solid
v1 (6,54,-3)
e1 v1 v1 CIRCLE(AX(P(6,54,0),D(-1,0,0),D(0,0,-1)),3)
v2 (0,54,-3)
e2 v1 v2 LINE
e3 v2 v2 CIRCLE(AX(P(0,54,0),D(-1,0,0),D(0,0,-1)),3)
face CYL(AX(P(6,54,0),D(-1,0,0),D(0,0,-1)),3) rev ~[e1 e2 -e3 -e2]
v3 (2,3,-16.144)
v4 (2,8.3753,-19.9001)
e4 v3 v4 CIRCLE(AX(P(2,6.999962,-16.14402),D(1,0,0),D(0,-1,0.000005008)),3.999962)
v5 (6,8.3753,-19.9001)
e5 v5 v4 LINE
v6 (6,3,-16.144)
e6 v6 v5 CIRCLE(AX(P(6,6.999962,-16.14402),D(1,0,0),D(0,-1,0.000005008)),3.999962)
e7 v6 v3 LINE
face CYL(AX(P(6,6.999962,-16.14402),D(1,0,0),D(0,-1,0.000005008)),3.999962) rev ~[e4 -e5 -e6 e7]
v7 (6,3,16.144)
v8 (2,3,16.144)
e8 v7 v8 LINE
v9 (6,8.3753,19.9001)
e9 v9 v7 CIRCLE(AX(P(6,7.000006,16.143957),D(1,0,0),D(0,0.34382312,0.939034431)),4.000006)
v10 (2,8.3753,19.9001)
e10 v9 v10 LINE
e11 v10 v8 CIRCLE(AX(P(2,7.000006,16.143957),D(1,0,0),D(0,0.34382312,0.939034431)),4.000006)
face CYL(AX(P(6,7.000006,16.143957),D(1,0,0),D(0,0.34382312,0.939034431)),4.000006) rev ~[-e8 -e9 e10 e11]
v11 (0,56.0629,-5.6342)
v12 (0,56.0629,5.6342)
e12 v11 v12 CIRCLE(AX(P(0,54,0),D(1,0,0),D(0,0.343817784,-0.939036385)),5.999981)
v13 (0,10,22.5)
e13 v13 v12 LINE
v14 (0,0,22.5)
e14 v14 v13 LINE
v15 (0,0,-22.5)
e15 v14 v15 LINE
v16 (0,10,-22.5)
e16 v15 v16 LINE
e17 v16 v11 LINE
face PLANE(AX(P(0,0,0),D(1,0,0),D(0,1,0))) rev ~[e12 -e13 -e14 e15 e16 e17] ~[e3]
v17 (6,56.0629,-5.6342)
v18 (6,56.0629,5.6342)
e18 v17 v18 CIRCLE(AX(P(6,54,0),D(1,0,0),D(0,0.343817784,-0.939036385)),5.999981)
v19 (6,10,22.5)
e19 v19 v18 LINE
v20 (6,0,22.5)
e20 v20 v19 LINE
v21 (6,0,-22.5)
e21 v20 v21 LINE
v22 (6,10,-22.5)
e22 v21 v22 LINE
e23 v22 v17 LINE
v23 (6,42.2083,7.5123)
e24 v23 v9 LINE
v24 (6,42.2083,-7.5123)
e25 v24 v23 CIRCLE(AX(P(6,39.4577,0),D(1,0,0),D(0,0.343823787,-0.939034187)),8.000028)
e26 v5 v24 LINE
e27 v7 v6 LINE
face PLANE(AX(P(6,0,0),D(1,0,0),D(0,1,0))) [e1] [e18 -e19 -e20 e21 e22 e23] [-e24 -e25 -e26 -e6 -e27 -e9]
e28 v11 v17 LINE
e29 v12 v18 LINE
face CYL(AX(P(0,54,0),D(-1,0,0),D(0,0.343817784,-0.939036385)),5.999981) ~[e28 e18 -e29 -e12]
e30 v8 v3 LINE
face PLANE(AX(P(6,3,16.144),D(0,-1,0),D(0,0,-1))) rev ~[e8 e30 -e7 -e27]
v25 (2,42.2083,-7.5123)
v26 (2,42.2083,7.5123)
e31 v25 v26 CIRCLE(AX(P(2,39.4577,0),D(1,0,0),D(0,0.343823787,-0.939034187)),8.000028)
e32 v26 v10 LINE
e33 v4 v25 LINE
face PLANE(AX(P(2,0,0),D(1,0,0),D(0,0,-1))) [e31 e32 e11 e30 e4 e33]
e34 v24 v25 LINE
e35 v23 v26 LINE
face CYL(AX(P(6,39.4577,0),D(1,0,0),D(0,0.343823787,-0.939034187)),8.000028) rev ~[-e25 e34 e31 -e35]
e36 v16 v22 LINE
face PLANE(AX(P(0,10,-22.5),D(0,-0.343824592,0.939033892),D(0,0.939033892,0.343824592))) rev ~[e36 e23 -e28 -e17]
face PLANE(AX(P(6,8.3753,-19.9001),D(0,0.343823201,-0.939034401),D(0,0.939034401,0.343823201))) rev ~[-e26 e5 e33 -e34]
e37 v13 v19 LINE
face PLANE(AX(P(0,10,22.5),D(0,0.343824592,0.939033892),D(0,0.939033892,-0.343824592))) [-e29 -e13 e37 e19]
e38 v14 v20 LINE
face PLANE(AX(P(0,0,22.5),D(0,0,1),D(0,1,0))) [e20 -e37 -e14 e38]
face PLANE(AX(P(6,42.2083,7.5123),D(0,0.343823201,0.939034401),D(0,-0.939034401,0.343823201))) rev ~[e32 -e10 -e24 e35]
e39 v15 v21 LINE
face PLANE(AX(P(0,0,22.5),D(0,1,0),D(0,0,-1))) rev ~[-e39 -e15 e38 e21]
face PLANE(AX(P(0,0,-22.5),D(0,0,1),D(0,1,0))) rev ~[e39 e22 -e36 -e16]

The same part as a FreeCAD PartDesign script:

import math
import FreeCAD as App
import Part
import Sketcher
from FreeCAD import Vector
Q = App.Units.Quantity

doc = App.newDocument("Part")
body = doc.addObject("PartDesign::Body", "Body")

sketch1 = body.newObject("Sketcher::SketchObject", "Sketch")
sketch1.AttachmentSupport = (doc.getObject("YZ_Plane"), [""])
sketch1.MapMode = "FlatFace"
sketch1.addGeometry([
    Part.LineSegment(Vector(10, 22.5, 0), Vector(0, 22.5, 0)),
    Part.LineSegment(Vector(0, 22.5, 0), Vector(0, -22.5, 0)),
    Part.LineSegment(Vector(0, -22.5, 0), Vector(10, -22.5, 0)),
    Part.LineSegment(Vector(10, -22.5, 0), Vector(56.0629, -5.6342, 0)),
    Part.ArcOfCircle(Part.Circle(Vector(54, 0, 0), Vector(0, 0, 1), 5.999981), math.radians(-69.890354), math.radians(69.890354)),
    Part.LineSegment(Vector(56.0629, 5.6342, 0), Vector(10, 22.5, 0)),
], False)
sketch1.addConstraint([
    Sketcher.Constraint("Coincident", 0, 2, 1, 1),
    Sketcher.Constraint("Coincident", 1, 2, 2, 1),
    Sketcher.Constraint("Coincident", 2, 2, 3, 1),
    Sketcher.Constraint("Tangent", 3, 2, 4, 1),
    Sketcher.Constraint("Tangent", 4, 2, 5, 1),
    Sketcher.Constraint("Coincident", 5, 2, 0, 1),
    Sketcher.Constraint("Horizontal", 0),
    Sketcher.Constraint("Vertical", 1),
    Sketcher.Constraint("Horizontal", 2),
    Sketcher.Constraint("Symmetric", 0, 2, 1, 2, -1, 1),
    Sketcher.Constraint("Symmetric", 3, 2, 4, 2, -1),
    Sketcher.Constraint("Radius", 4, 6.0),
    Sketcher.Constraint("DistanceX", 0, 2, 0, 1, 10.0),
    Sketcher.Constraint("DistanceY", 1, 2, 1, 1, 45.0),
    Sketcher.Constraint("DistanceX", -1, 1, 4, 3, 54.0),
])
pad1 = body.newObject("PartDesign::Pad", "Pad")
pad1.Profile = sketch1
pad1.Length = 6

sketch2 = body.newObject("Sketcher::SketchObject", "Sketch001")
sketch2.AttachmentSupport = (doc.getObject("YZ_Plane"), [""])
sketch2.MapMode = "FlatFace"
sketch2.AttachmentOffset = App.Placement(Vector(0, 0, 6), App.Rotation())
sketch2.addGeometry([
    Part.ArcOfCircle(Part.Circle(Vector(39.4577, 0, 0), Vector(0, 0, 1), 8.000028), math.radians(-69.889988), math.radians(69.889988)),
    Part.LineSegment(Vector(42.2083, 7.5123, 0), Vector(8.3753, 19.9001, 0)),
    Part.ArcOfCircle(Part.Circle(Vector(7, 16.144, 0), Vector(0, 0, 1), 3.999967), math.radians(69.889742), math.radians(180)),
    Part.LineSegment(Vector(3, 16.144, 0), Vector(3, -16.144, 0)),
    Part.ArcOfCircle(Part.Circle(Vector(7, -16.144, 0), Vector(0, 0, 1), 4), math.radians(180), math.radians(290.110258)),
    Part.LineSegment(Vector(8.3753, -19.9001, 0), Vector(42.2083, -7.5123, 0)),
], False)
sketch2.addConstraint([
    Sketcher.Constraint("Tangent", 0, 2, 1, 1),
    Sketcher.Constraint("Tangent", 1, 2, 2, 1),
    Sketcher.Constraint("Tangent", 2, 2, 3, 1),
    Sketcher.Constraint("Tangent", 3, 2, 4, 1),
    Sketcher.Constraint("Tangent", 4, 2, 5, 1),
    Sketcher.Constraint("Tangent", 5, 2, 0, 1),
    Sketcher.Constraint("Vertical", 3),
    Sketcher.Constraint("Equal", 2, 4),
    Sketcher.Constraint("Symmetric", 1, 2, 4, 2, -1),
    Sketcher.Constraint("Radius", 0, 8.0),
    Sketcher.Constraint("Radius", 2, 4.0),
    Sketcher.Constraint("DistanceX", -1, 1, 2, 2, 3.0),
    Sketcher.Constraint("DistanceY", -1, 1, 1, 2, 19.9),
    Sketcher.Constraint("Angle", 1, Q("159.89 deg")),
])
pocket1 = body.newObject("PartDesign::Pocket", "Pocket")
pocket1.Profile = sketch2
pocket1.Length = 4

sketch3 = body.newObject("Sketcher::SketchObject", "Sketch002")
sketch3.AttachmentSupport = (doc.getObject("YZ_Plane"), [""])
sketch3.MapMode = "FlatFace"
sketch3.AttachmentOffset = App.Placement(Vector(0, 0, 6), App.Rotation())
sketch3.addGeometry(Part.Circle(Vector(54, 0, 0), Vector(0, 0, 1), 3), False)
sketch3.addConstraint([
    Sketcher.Constraint("PointOnObject", 0, 3, -1),
    Sketcher.Constraint("Diameter", 0, 6.0),
    Sketcher.Constraint("DistanceX", -1, 1, 0, 3, 54.0),
])
doc.recompute()
hole = body.newObject("PartDesign::Hole", "Hole")
hole.Profile = sketch3
hole.ThreadType = "None"
hole.Diameter = 6
hole.DepthType = "ThroughAll"

doc.recompute()
